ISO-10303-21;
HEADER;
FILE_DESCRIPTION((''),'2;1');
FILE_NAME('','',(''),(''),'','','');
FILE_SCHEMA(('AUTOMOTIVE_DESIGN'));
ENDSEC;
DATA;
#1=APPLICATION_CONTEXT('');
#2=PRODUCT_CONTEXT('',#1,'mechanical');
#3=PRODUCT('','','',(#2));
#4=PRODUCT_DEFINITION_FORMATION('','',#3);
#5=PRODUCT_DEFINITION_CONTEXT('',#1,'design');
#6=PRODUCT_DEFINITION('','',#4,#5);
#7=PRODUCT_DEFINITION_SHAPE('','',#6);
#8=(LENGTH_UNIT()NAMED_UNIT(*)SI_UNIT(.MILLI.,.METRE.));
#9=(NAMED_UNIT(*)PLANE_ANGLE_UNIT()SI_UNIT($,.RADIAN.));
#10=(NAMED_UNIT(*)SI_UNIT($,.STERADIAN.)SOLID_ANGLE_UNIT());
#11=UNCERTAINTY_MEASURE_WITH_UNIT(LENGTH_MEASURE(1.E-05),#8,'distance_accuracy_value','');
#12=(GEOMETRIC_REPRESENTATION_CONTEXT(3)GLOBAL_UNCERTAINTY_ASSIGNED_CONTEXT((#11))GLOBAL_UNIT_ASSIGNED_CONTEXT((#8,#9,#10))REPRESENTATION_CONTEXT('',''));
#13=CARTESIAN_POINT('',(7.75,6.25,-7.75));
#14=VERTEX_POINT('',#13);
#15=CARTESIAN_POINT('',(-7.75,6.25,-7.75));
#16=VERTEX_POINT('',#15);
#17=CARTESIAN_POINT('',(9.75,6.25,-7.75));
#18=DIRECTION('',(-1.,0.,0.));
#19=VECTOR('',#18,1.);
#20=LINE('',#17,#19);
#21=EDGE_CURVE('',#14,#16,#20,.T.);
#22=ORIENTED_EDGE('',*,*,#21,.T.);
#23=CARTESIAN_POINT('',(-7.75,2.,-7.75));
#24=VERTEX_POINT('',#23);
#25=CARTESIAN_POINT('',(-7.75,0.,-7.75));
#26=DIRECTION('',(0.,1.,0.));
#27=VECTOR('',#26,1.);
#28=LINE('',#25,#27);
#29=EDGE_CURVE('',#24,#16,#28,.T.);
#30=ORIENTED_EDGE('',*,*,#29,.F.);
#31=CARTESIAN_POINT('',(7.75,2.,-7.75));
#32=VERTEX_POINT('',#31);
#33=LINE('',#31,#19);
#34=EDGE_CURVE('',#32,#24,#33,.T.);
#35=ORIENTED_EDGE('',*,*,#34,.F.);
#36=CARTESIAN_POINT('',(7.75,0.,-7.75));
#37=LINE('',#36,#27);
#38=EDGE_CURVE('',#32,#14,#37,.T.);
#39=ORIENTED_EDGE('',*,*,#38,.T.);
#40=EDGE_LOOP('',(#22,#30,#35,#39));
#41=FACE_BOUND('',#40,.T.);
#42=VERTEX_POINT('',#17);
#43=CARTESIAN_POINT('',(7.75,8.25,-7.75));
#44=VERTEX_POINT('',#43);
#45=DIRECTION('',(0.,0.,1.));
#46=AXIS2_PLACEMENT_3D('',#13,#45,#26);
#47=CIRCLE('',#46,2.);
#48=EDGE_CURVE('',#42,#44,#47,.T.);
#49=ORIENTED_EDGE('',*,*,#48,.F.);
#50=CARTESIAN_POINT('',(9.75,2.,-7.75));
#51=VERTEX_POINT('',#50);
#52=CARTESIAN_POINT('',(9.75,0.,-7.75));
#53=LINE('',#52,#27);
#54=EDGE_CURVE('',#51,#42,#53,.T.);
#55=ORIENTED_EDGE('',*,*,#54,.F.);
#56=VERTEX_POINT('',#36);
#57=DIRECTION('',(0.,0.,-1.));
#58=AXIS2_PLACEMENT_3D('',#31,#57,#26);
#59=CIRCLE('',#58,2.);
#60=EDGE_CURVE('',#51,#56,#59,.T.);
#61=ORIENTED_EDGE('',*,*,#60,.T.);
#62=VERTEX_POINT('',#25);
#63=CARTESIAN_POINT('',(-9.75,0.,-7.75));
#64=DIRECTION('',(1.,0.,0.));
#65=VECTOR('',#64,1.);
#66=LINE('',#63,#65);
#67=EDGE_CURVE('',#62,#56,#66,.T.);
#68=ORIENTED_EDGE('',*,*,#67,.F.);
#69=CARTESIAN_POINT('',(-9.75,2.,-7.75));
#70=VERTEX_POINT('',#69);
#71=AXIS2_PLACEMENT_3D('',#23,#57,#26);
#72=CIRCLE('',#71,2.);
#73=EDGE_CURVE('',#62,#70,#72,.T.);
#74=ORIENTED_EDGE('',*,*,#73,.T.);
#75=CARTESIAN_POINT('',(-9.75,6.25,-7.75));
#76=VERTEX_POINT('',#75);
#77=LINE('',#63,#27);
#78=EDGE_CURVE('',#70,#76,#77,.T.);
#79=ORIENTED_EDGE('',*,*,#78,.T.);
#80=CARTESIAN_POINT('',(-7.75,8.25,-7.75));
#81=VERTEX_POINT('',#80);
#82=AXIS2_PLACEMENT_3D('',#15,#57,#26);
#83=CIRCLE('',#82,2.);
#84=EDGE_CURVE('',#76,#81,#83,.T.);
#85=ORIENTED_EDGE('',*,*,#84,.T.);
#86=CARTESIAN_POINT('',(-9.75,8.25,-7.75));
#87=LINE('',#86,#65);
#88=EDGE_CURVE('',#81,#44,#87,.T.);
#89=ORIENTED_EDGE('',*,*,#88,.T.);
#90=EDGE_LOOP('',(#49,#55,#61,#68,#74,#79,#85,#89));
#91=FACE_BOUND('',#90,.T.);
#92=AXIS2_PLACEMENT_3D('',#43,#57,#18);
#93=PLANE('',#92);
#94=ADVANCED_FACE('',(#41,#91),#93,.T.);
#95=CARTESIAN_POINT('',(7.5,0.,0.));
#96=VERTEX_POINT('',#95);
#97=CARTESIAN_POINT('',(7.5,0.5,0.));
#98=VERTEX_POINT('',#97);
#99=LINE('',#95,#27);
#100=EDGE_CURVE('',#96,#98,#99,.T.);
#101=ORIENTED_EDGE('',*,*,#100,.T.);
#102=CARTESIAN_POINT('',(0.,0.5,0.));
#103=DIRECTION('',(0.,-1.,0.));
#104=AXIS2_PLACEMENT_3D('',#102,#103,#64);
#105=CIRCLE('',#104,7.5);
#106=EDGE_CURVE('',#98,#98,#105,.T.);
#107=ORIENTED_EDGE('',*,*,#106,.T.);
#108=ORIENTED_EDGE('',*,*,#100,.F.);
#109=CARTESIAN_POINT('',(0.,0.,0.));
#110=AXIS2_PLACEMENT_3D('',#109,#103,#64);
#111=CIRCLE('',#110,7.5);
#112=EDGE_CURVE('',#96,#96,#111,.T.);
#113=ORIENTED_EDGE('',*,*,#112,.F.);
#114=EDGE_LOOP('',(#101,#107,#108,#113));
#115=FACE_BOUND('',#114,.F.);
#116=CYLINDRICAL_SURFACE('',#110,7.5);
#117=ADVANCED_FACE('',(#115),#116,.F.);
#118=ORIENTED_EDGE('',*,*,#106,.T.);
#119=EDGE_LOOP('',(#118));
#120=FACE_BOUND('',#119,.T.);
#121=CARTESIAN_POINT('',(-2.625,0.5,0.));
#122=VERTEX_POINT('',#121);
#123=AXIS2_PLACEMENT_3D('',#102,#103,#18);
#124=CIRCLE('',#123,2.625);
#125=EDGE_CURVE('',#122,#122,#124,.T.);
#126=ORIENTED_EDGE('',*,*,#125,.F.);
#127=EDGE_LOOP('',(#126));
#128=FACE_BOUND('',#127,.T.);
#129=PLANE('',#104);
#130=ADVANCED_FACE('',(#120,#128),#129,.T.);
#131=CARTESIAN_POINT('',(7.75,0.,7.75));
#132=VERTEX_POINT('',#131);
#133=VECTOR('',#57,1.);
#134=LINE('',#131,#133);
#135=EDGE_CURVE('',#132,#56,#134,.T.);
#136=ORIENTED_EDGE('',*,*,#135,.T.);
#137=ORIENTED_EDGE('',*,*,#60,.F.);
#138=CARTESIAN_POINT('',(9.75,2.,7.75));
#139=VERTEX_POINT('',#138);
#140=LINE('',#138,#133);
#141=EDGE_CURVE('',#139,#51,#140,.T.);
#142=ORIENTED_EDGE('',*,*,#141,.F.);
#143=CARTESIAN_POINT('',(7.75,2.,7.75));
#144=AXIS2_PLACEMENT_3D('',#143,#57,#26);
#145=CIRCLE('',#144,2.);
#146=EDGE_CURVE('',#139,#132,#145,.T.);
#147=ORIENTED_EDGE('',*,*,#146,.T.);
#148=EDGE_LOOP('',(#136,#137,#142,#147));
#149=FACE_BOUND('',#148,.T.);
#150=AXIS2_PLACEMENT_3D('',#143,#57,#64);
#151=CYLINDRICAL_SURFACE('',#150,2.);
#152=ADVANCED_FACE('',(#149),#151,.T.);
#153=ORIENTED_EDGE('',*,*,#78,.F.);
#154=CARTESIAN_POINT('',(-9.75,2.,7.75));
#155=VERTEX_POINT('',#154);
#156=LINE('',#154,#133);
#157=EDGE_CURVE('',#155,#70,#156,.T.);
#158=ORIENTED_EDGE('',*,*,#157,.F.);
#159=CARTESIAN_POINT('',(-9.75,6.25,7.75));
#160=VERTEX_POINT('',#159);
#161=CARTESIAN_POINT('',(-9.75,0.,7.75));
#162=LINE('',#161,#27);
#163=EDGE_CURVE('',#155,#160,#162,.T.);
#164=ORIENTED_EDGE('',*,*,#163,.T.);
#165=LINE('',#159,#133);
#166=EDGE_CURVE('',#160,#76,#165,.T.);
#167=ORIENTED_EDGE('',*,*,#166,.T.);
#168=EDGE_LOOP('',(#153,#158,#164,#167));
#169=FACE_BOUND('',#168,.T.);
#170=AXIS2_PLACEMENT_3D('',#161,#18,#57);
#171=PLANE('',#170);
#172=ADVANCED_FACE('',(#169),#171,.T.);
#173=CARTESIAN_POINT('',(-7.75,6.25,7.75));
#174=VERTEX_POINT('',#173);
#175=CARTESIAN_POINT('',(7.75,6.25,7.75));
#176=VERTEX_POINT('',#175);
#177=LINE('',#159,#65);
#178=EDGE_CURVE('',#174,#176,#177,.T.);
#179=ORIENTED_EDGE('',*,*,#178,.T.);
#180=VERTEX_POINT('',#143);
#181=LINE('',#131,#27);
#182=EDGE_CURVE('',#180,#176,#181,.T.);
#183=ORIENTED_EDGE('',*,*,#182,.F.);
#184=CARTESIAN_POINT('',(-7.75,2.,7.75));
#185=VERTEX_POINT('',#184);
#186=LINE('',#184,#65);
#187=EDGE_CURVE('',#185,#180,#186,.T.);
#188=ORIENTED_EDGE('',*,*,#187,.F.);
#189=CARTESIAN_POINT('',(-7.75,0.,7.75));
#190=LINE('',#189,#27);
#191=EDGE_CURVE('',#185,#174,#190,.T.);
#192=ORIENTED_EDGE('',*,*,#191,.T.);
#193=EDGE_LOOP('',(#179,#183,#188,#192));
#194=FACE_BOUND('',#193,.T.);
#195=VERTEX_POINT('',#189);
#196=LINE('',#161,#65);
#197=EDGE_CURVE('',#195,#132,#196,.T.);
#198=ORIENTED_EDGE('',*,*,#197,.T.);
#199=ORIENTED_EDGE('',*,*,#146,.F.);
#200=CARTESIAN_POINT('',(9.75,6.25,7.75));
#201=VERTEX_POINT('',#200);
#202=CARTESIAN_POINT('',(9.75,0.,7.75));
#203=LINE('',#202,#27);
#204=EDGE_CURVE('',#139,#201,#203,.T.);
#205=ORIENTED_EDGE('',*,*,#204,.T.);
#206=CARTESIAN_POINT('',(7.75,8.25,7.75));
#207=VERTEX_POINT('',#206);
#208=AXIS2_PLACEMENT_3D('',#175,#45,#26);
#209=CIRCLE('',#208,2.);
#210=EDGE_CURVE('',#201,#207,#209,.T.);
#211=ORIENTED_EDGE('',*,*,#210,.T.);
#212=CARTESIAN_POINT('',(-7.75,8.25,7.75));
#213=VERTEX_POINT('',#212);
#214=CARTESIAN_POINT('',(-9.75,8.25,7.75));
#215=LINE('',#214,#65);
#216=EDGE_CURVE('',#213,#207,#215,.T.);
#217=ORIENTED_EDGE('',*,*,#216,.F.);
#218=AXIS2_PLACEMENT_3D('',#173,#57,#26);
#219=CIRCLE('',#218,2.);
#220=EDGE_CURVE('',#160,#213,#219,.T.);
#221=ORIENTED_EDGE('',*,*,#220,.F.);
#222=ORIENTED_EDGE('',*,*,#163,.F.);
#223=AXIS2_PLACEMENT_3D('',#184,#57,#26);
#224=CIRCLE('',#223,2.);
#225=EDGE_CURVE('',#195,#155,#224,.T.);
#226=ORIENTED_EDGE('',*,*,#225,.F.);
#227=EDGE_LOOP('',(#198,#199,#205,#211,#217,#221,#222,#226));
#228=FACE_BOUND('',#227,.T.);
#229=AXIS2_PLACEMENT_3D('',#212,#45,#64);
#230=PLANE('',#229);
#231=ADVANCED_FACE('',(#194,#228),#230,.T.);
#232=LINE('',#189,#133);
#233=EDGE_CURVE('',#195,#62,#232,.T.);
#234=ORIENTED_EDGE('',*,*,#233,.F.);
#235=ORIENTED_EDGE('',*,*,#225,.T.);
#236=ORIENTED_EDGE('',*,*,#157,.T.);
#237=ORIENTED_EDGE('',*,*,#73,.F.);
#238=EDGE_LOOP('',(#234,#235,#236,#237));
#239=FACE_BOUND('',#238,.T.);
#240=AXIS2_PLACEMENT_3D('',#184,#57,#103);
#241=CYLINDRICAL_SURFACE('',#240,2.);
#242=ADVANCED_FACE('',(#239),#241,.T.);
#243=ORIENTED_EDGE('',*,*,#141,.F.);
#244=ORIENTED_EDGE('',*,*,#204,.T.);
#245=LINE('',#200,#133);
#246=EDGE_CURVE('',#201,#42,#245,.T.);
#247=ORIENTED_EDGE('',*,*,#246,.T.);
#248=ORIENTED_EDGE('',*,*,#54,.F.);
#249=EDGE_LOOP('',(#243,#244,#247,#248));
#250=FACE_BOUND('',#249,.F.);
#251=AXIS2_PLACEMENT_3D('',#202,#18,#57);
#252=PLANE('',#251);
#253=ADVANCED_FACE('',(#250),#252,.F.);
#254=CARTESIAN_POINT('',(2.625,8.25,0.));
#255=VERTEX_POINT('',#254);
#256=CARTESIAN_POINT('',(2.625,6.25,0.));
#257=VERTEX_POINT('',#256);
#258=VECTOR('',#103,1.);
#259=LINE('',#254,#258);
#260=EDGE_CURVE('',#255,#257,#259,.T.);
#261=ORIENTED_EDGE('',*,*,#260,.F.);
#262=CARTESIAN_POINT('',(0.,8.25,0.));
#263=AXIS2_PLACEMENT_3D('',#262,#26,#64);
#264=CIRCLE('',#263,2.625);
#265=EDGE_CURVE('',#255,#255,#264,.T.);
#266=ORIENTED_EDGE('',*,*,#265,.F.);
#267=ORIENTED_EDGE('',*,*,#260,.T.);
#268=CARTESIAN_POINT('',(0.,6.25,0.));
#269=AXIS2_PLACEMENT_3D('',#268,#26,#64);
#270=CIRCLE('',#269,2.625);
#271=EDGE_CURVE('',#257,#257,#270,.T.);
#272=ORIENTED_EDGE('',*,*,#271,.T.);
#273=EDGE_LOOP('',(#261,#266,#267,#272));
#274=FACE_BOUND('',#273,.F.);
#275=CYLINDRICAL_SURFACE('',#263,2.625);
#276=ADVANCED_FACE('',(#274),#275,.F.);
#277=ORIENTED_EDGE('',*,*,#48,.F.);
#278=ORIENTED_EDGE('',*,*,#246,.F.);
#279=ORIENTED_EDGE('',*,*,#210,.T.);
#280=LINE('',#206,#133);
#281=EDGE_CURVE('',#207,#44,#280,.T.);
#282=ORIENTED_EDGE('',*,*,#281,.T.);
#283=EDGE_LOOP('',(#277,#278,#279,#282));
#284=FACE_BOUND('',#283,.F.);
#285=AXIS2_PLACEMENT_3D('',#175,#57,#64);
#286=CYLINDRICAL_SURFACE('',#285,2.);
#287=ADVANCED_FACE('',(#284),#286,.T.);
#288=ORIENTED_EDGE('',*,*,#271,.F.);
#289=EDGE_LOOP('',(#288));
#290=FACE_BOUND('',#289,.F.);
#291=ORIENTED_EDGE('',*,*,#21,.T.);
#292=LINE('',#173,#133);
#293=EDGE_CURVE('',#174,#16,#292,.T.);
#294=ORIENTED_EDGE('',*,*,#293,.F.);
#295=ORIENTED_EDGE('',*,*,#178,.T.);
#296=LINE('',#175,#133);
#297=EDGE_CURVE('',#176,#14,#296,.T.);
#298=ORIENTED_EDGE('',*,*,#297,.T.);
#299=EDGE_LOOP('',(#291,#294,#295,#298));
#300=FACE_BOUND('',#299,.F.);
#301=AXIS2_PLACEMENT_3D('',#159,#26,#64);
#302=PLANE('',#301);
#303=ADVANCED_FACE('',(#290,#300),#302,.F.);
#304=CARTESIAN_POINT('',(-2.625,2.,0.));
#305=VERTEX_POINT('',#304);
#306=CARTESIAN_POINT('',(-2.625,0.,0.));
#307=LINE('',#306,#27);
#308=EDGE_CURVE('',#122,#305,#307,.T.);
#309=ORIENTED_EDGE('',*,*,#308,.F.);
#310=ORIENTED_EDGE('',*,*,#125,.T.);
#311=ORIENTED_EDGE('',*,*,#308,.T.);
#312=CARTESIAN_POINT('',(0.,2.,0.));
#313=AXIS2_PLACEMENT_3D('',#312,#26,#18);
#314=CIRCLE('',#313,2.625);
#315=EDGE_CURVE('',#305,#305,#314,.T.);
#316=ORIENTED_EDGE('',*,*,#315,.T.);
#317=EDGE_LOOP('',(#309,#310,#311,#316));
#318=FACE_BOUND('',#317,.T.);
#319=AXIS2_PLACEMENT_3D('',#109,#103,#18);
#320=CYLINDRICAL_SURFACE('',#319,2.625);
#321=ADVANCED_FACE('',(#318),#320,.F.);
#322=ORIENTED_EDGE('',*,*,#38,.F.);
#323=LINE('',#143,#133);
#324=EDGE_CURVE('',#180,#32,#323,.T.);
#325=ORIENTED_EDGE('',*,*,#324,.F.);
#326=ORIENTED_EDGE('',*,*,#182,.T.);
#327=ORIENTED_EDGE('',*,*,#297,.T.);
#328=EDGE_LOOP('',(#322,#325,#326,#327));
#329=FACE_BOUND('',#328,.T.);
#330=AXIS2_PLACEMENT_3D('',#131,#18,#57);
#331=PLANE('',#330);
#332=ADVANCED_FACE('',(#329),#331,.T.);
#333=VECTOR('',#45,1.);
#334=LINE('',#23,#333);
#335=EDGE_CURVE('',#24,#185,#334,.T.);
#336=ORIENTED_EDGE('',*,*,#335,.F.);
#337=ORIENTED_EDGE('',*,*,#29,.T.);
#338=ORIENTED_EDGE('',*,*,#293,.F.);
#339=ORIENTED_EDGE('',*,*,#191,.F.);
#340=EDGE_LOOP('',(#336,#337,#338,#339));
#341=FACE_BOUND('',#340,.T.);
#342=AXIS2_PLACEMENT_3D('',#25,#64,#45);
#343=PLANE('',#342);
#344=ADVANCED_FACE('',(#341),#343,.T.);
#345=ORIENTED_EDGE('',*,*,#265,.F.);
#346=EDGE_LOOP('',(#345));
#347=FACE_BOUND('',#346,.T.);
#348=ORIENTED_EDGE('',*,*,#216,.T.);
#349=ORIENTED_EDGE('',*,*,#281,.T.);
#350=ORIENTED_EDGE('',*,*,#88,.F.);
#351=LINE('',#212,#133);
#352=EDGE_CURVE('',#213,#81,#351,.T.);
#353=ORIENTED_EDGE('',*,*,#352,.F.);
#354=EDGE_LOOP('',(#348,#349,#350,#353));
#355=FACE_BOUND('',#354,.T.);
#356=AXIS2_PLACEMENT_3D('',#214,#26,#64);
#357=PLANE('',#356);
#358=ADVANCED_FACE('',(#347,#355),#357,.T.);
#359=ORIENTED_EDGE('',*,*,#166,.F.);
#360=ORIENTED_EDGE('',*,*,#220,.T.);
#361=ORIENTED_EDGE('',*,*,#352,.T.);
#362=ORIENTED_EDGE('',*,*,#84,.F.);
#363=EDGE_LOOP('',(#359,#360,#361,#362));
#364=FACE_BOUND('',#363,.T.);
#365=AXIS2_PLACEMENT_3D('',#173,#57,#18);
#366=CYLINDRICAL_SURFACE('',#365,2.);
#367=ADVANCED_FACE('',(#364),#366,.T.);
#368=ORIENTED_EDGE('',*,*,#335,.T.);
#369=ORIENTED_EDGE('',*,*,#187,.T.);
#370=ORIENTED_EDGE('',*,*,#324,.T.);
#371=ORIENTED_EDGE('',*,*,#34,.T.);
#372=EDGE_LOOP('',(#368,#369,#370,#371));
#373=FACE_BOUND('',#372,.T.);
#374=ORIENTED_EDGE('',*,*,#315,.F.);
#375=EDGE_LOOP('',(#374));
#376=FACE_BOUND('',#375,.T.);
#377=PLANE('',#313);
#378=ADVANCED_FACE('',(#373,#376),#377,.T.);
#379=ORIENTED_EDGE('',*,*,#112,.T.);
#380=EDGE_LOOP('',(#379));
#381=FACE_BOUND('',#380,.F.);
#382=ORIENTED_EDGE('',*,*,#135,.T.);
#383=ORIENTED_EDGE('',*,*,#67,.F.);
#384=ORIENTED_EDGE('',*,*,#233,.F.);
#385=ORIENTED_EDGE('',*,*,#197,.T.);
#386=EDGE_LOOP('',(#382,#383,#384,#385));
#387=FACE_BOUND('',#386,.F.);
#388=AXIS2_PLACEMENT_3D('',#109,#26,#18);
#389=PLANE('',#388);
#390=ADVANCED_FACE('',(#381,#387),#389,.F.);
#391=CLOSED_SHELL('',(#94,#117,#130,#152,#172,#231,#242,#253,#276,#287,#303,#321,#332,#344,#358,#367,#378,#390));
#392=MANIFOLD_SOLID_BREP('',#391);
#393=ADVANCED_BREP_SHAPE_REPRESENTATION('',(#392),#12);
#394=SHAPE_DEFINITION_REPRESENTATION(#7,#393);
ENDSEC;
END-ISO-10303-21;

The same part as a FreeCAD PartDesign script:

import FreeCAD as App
import Part
import Sketcher
Q = App.Units.Quantity


def edges_at(feature, points):
    """Names of the edges that pass closest to the given points."""
    edges = feature.Shape.Edges
    near = lambda p: min(range(len(edges)), key=lambda i: edges[i].distToShape(Part.Vertex(*p))[0])
    return sorted({f"Edge{near(p) + 1}" for p in points})

doc = App.newDocument("Part")
body = doc.addObject("PartDesign::Body", "Body")

sketch1 = body.newObject("Sketcher::SketchObject", "Sketch")
sketch1.AttachmentSupport = (doc.getObject("XZ_Plane"), [""])
sketch1.MapMode = "FlatFace"
sketch1.addGeometry([
    Part.LineSegment(App.Vector(7.8, 7.8, 0), App.Vector(7.8, -7.8, 0)),
    Part.LineSegment(App.Vector(7.8, -7.8, 0), App.Vector(-7.8, -7.8, 0)),
    Part.LineSegment(App.Vector(-7.8, -7.8, 0), App.Vector(-7.8, 7.8, 0)),
    Part.LineSegment(App.Vector(-7.8, 7.8, 0), App.Vector(7.8, 7.8, 0)),
    Part.Circle(App.Vector(0, 0, 0), App.Vector(0, 0, 1), 2.6),
], False)
sketch1.addConstraint([
    Sketcher.Constraint("Coincident", 0, 2, 1, 1),
    Sketcher.Constraint("Coincident", 1, 2, 2, 1),
    Sketcher.Constraint("Coincident", 2, 2, 3, 1),
    Sketcher.Constraint("Coincident", 3, 2, 0, 1),
    Sketcher.Constraint("Vertical", 0),
    Sketcher.Constraint("Horizontal", 1),
    Sketcher.Constraint("Vertical", 2),
    Sketcher.Constraint("Horizontal", 3),
    Sketcher.Constraint("Coincident", 4, 3, -1, 1),
    Sketcher.Constraint("Symmetric", 0, 2, 2, 2, -1, 1),
    Sketcher.Constraint("Equal", 3, 0),
    Sketcher.Constraint("Diameter", 4, Q("5.25 mm")),
    Sketcher.Constraint("DistanceX", 1, 2, 1, 1, Q("15.5 mm")),
])
pad1 = body.newObject("PartDesign::Pad", "Pad")
pad1.Profile = sketch1
pad1.Length = 2
pad1.Reversed = True

sketch2 = body.newObject("Sketcher::SketchObject", "Sketch001")
sketch2.AttachmentSupport = (doc.getObject("XZ_Plane"), [""])
sketch2.MapMode = "FlatFace"
sketch2.addGeometry([
    Part.LineSegment(App.Vector(9.8, -7.8, 0), App.Vector(7.8, -7.8, 0)),
    Part.LineSegment(App.Vector(7.8, -7.8, 0), App.Vector(7.8, 7.8, 0)),
    Part.LineSegment(App.Vector(7.8, 7.8, 0), App.Vector(9.8, 7.8, 0)),
    Part.LineSegment(App.Vector(9.8, 7.8, 0), App.Vector(9.8, -7.8, 0)),
    Part.LineSegment(App.Vector(-7.8, 7.8, 0), App.Vector(-7.8, -7.8, 0)),
    Part.LineSegment(App.Vector(-7.8, -7.8, 0), App.Vector(-9.8, -7.8, 0)),
    Part.LineSegment(App.Vector(-9.8, -7.8, 0), App.Vector(-9.8, 7.8, 0)),
    Part.LineSegment(App.Vector(-9.8, 7.8, 0), App.Vector(-7.8, 7.8, 0)),
], False)
sketch2.addConstraint([
    Sketcher.Constraint("Coincident", 0, 2, 1, 1),
    Sketcher.Constraint("Coincident", 1, 2, 2, 1),
    Sketcher.Constraint("Coincident", 2, 2, 3, 1),
    Sketcher.Constraint("Coincident", 3, 2, 0, 1),
    Sketcher.Constraint("Coincident", 4, 2, 5, 1),
    Sketcher.Constraint("Coincident", 5, 2, 6, 1),
    Sketcher.Constraint("Coincident", 6, 2, 7, 1),
    Sketcher.Constraint("Coincident", 7, 2, 4, 1),
    Sketcher.Constraint("Horizontal", 0),
    Sketcher.Constraint("Vertical", 1),
    Sketcher.Constraint("Horizontal", 2),
    Sketcher.Constraint("Vertical", 3),
    Sketcher.Constraint("Vertical", 4),
    Sketcher.Constraint("Horizontal", 5),
    Sketcher.Constraint("Vertical", 6),
    Sketcher.Constraint("Horizontal", 7),
    Sketcher.Constraint("Symmetric", 1, 2, 4, 2, -1, 1),
    Sketcher.Constraint("Symmetric", 3, 2, 6, 2, -1, 1),
    Sketcher.Constraint("Horizontal", 3, 2, 4, 2),
    Sketcher.Constraint("DistanceX", 0, 2, 0, 1, Q("2 mm")),
    Sketcher.Constraint("DistanceY", 1, 1, 1, 2, Q("15.5 mm")),
    Sketcher.Constraint("DistanceX", 4, 2, 0, 2, Q("15.5 mm")),
])
pad2 = body.newObject("PartDesign::Pad", "Pad001")
pad2.Profile = sketch2
pad2.Length = 8.25
pad2.Reversed = True

sketch3 = body.newObject("Sketcher::SketchObject", "Sketch002")
sketch3.AttachmentSupport = (doc.getObject("XZ_Plane"), [""])
sketch3.MapMode = "FlatFace"
sketch3.AttachmentOffset = App.Placement(App.Vector(0, 0, -8.25), App.Rotation())
sketch3.addGeometry([
    Part.LineSegment(App.Vector(-7.8, -7.8, 0), App.Vector(-7.8, 7.8, 0)),
    Part.LineSegment(App.Vector(-7.8, 7.8, 0), App.Vector(7.8, 7.8, 0)),
    Part.LineSegment(App.Vector(7.8, 7.8, 0), App.Vector(7.8, -7.8, 0)),
    Part.LineSegment(App.Vector(7.8, -7.8, 0), App.Vector(-7.8, -7.8, 0)),
    Part.Circle(App.Vector(0, 0, 0), App.Vector(0, 0, 1), 2.6),
], False)
sketch3.addConstraint([
    Sketcher.Constraint("Coincident", 0, 2, 1, 1),
    Sketcher.Constraint("Coincident", 1, 2, 2, 1),
    Sketcher.Constraint("Coincident", 2, 2, 3, 1),
    Sketcher.Constraint("Coincident", 3, 2, 0, 1),
    Sketcher.Constraint("Vertical", 0),
    Sketcher.Constraint("Horizontal", 1),
    Sketcher.Constraint("Vertical", 2),
    Sketcher.Constraint("Horizontal", 3),
    Sketcher.Constraint("Coincident", 4, 3, -1, 1),
    Sketcher.Constraint("Symmetric", 0, 2, 2, 2, -1, 1),
    Sketcher.Constraint("Equal", 3, 0),
    Sketcher.Constraint("Diameter", 4, Q("5.25 mm")),
    Sketcher.Constraint("DistanceX", 1, 1, 1, 2, Q("15.5 mm")),
])
pad3 = body.newObject("PartDesign::Pad", "Pad002")
pad3.Profile = sketch3
pad3.Length = 2

sketch4 = body.newObject("Sketcher::SketchObject", "Sketch003")
sketch4.AttachmentSupport = (doc.getObject("XZ_Plane"), [""])
sketch4.MapMode = "FlatFace"
sketch4.addGeometry(Part.Circle(App.Vector(0, 0, 0), App.Vector(0, 0, 1), 8), False)
sketch4.addConstraint([
    Sketcher.Constraint("Coincident", 0, 3, -1, 1),
    Sketcher.Constraint("Diameter", 0, Q("15 mm")),
])
pocket1 = body.newObject("PartDesign::Pocket", "Pocket")
pocket1.Profile = sketch4
pocket1.Length = 0.5
doc.recompute()

fillet = body.newObject("PartDesign::Fillet", "Fillet")
fillet.Base = (pocket1, edges_at(pocket1, [
    (9.75, 8.25, 0),
    (-9.75, 8.25, 0),
    (9.75, 0, 0),
    (-9.75, 0, 0),
]))
fillet.Radius = 2

doc.recompute()
